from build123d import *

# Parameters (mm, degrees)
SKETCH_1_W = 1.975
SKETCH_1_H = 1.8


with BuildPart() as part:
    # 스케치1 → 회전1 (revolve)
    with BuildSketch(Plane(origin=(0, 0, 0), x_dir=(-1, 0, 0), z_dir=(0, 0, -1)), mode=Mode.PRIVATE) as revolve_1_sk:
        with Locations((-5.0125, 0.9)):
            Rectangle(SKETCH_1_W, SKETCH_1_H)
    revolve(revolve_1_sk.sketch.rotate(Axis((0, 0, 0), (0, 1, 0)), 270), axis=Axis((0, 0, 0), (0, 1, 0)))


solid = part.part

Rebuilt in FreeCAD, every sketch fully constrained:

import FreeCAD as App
import Part
import Sketcher

V = App.Vector


def add_polygon(sketch, points):
    """Adds a closed chain of lines whose ends are joined by coincident constraints."""
    first, n = sketch.GeometryCount, len(points)
    for a, b in zip(points, points[1:] + points[:1]):
        sketch.addGeometry(Part.LineSegment(App.Vector(*a, 0), App.Vector(*b, 0)), False)
    for i in range(n):
        sketch.addConstraint(Sketcher.Constraint("Coincident", first + i, 2, first + (i + 1) % n, 1))

doc = App.newDocument("Part")
params = doc.addObject("Spreadsheet::Sheet", "Params")
for row, (alias, value) in enumerate([
    ("sketch1_height", "1.8 mm"),
    ("revolution_angle", "360 deg"),
], start=1):
    params.set(f"A{row}", alias)
    params.set(f"B{row}", "=" + value)
    params.setAlias(f"B{row}", alias)

body = doc.addObject("PartDesign::Body", "Body")

sketch1 = doc.addObject("Sketcher::SketchObject", "Sketch")
body.addObject(sketch1)
sketch1.AttachmentSupport = (doc.XY_Plane, [""])
sketch1.MapMode = "FlatFace"
add_polygon(sketch1, [(6, 1.8), (6, 0), (4, 0), (4, 1.8)])
sketch1.addConstraint([
    Sketcher.Constraint("Vertical", 0),
    Sketcher.Constraint("Horizontal", 1),
    Sketcher.Constraint("Vertical", 2),
    Sketcher.Constraint("Horizontal", 3),
    Sketcher.Constraint("PointOnObject", 0, 2, -1),
    Sketcher.Constraint("DistanceY", 0, 2, 0, 1, 1.8),
    Sketcher.Constraint("DistanceX", -1, 1, 0, 2, 6.0),
    Sketcher.Constraint("DistanceX", 1, 2, 1, 1, 1.975),
])
sketch1.setExpression("Constraints[9]", "Params.sketch1_height")
revolution = doc.addObject("PartDesign::Revolution", "Revolution")
body.addObject(revolution)
revolution.Profile = sketch1
revolution.ReferenceAxis = (sketch1, ["V_Axis"])
revolution.setExpression("Angle", "Params.revolution_angle")

doc.recompute()
